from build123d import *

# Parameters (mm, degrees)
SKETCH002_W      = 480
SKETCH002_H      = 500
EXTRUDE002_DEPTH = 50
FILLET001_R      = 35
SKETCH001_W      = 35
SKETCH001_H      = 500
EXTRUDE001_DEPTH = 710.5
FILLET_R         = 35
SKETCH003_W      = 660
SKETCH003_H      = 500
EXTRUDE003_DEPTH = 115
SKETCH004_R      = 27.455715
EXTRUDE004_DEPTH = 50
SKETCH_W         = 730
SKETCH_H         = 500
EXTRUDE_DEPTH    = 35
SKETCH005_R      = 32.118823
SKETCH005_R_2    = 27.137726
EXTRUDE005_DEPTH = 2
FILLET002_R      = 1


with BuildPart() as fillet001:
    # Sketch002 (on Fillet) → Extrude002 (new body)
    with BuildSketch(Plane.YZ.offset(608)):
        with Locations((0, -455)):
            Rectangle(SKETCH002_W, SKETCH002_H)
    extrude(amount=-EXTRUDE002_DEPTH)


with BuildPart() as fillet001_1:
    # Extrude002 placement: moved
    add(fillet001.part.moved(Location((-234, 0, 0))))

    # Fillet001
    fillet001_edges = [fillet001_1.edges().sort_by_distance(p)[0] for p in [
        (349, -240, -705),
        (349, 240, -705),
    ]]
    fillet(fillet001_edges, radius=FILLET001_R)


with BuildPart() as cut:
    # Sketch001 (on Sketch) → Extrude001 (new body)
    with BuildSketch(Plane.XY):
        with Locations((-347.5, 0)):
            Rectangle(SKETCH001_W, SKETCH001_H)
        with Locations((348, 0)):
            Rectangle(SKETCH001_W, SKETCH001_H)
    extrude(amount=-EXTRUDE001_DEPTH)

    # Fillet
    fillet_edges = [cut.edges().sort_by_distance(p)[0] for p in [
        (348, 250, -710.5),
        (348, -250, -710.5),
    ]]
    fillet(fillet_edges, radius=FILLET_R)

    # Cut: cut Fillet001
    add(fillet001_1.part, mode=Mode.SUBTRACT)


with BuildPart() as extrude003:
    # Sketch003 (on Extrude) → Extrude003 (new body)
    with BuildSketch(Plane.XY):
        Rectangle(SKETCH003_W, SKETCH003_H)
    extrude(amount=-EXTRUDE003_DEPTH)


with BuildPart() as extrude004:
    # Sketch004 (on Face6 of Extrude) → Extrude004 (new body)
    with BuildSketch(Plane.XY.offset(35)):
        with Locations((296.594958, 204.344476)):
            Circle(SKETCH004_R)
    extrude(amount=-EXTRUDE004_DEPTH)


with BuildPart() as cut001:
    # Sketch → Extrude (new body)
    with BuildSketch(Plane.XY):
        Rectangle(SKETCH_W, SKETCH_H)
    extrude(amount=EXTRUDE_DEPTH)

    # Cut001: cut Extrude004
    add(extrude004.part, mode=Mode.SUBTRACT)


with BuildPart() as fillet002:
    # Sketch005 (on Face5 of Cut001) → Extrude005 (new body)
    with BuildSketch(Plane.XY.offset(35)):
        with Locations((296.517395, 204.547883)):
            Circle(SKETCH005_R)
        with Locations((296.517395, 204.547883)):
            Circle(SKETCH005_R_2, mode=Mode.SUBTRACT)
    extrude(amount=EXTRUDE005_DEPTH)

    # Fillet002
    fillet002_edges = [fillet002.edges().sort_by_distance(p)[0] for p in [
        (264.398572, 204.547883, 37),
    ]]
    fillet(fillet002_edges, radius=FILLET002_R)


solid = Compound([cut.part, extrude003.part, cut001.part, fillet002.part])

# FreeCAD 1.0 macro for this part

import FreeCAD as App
import Part
import Sketcher
Q = App.Units.Quantity


def edges_at(feature, points):
    """Names of the edges that pass closest to the given points."""
    edges = feature.Shape.Edges
    near = lambda p: min(range(len(edges)), key=lambda i: edges[i].distToShape(Part.Vertex(*p))[0])
    return sorted({f"Edge{near(p) + 1}" for p in points})


def add_polygon(sketch, points):
    """Adds a closed chain of lines whose ends are joined by coincident constraints."""
    first, n = sketch.GeometryCount, len(points)
    for a, b in zip(points, points[1:] + points[:1]):
        sketch.addGeometry(Part.LineSegment(App.Vector(*a, 0), App.Vector(*b, 0)), False)
    for i in range(n):
        sketch.addConstraint(Sketcher.Constraint("Coincident", first + i, 2, first + (i + 1) % n, 1))

doc = App.newDocument("Part")
body = doc.addObject("PartDesign::Body", "Body")

# Sketch on YZ plane
sketch1 = body.newObject("Sketcher::SketchObject", "Sketch")
sketch1.AttachmentSupport = (doc.getObject("YZ_Plane"), [""])
sketch1.MapMode = "FlatFace"
sketch1.AttachmentOffset = App.Placement(App.Vector(0, 0, 608), App.Rotation())
add_polygon(sketch1, [(-240, -205), (-240, -705), (240, -705), (240, -205)])  # lines 0-3
sketch1.addConstraint(Sketcher.Constraint("Vertical", 0))
sketch1.addConstraint(Sketcher.Constraint("Horizontal", 1))
sketch1.addConstraint(Sketcher.Constraint("Vertical", 2))
sketch1.addConstraint(Sketcher.Constraint("Horizontal", 3))
sketch1.addConstraint(Sketcher.Constraint("DistanceX", 1, 1, 1, 2, Q("480 mm")))
sketch1.addConstraint(Sketcher.Constraint("DistanceY", 0, 2, 0, 1, Q("500 mm")))
sketch1.addConstraint(Sketcher.Constraint("DistanceX", 0, 2, -1, 1, Q("240 mm")))
sketch1.addConstraint(Sketcher.Constraint("DistanceY", 0, 2, -1, 1, Q("705 mm")))
pad1 = body.newObject("PartDesign::Pad", "Pad")
pad1.Profile = sketch1
pad1.Length = 50
pad1.Reversed = True
body2 = doc.addObject("PartDesign::Body", "Body001")
doc.recompute()

body.Placement = App.Placement(App.Vector(-234, 0, 0), App.Rotation(App.Vector(0, 0, 1), 0))
boolean = body2.newObject("PartDesign::Boolean", "Boolean")
boolean.Type = "Fuse"
boolean.addObjects([body])
doc.recompute()

fillet = body2.newObject("PartDesign::Fillet", "Fillet")
fillet.Base = (boolean, edges_at(boolean, [(349, -240, -705), (349, 240, -705)]))
fillet.Radius = 35
body3 = doc.addObject("PartDesign::Body", "Body002")
body3.AllowCompound = True

# Sketch on XY plane
sketch2 = body3.newObject("Sketcher::SketchObject", "Sketch001")
sketch2.AttachmentSupport = (doc.getObject("XY_Plane002"), [""])
sketch2.MapMode = "FlatFace"
add_polygon(sketch2, [(-365, 250), (-365, -250), (-330, -250), (-330, 250)])  # lines 0-3
add_polygon(sketch2, [(330, 250), (330, -250), (366, -250), (366, 250)])  # lines 4-7
sketch2.addConstraint(Sketcher.Constraint("Vertical", 0))
sketch2.addConstraint(Sketcher.Constraint("Horizontal", 1))
sketch2.addConstraint(Sketcher.Constraint("Vertical", 2))
sketch2.addConstraint(Sketcher.Constraint("Horizontal", 3))
sketch2.addConstraint(Sketcher.Constraint("Vertical", 4))
sketch2.addConstraint(Sketcher.Constraint("Horizontal", 5))
sketch2.addConstraint(Sketcher.Constraint("Vertical", 6))
sketch2.addConstraint(Sketcher.Constraint("Horizontal", 7))
sketch2.addConstraint(Sketcher.Constraint("Horizontal", 1, 2, 4, 2))
sketch2.addConstraint(Sketcher.Constraint("Horizontal", 3, 2, 6, 2))
sketch2.addConstraint(Sketcher.Constraint("Equal", 3, 5))
sketch2.addConstraint(Sketcher.Constraint("DistanceX", 1, 1, 1, 2, Q("35 mm")))
sketch2.addConstraint(Sketcher.Constraint("DistanceY", 0, 2, 0, 1, Q("500 mm")))
sketch2.addConstraint(Sketcher.Constraint("DistanceX", 0, 2, -1, 1, Q("365 mm")))
sketch2.addConstraint(Sketcher.Constraint("DistanceY", 0, 2, -1, 1, Q("250 mm")))
sketch2.addConstraint(Sketcher.Constraint("DistanceX", -1, 1, 4, 2, Q("330.5 mm")))
pad2 = body3.newObject("PartDesign::Pad", "Pad001")
pad2.Profile = sketch2
pad2.Length = 710.5
pad2.Reversed = True
doc.recompute()

fillet2 = body3.newObject("PartDesign::Fillet", "Fillet001")
fillet2.Base = (pad2, edges_at(pad2, [(348, 250, -710.5), (348, -250, -710.5)]))
fillet2.Radius = 35
doc.recompute()

boolean2 = body3.newObject("PartDesign::Boolean", "Boolean001")
boolean2.Type = "Cut"
boolean2.addObjects([body2])
body4 = doc.addObject("PartDesign::Body", "Body003")

# Sketch on XY plane
sketch3 = body4.newObject("Sketcher::SketchObject", "Sketch002")
sketch3.AttachmentSupport = (doc.getObject("XY_Plane003"), [""])
sketch3.MapMode = "FlatFace"
add_polygon(sketch3, [(-330, 250), (-330, -250), (330, -250), (330, 250)])  # lines 0-3
sketch3.addConstraint(Sketcher.Constraint("Vertical", 0))
sketch3.addConstraint(Sketcher.Constraint("Horizontal", 1))
sketch3.addConstraint(Sketcher.Constraint("Vertical", 2))
sketch3.addConstraint(Sketcher.Constraint("Horizontal", 3))
sketch3.addConstraint(Sketcher.Constraint("Symmetric", 0, 2, 2, 2, -1, 1))
sketch3.addConstraint(Sketcher.Constraint("DistanceX", 1, 1, 1, 2, Q("660 mm")))
sketch3.addConstraint(Sketcher.Constraint("DistanceY", 0, 2, 0, 1, Q("500 mm")))
pad3 = body4.newObject("PartDesign::Pad", "Pad002")
pad3.Profile = sketch3
pad3.Length = 115
pad3.Reversed = True
body5 = doc.addObject("PartDesign::Body", "Body004")

# Sketch on XY plane
sketch4 = body5.newObject("Sketcher::SketchObject", "Sketch003")
sketch4.AttachmentSupport = (doc.getObject("XY_Plane004"), [""])
sketch4.MapMode = "FlatFace"
sketch4.AttachmentOffset = App.Placement(App.Vector(0, 0, 35), App.Rotation())
sketch4.addGeometry(Part.Circle(App.Vector(297, 204, 0), App.Vector(0, 0, 1), 27), False)
sketch4.addConstraint(Sketcher.Constraint("Diameter", 0, Q("54.91143 mm")))
sketch4.addConstraint(Sketcher.Constraint("DistanceX", -1, 1, 0, 3, Q("296.594958 mm")))
sketch4.addConstraint(Sketcher.Constraint("DistanceY", -1, 1, 0, 3, Q("204.344476 mm")))
pad4 = body5.newObject("PartDesign::Pad", "Pad003")
pad4.Profile = sketch4
pad4.Length = 50
pad4.Reversed = True
body6 = doc.addObject("PartDesign::Body", "Body005")

# Sketch on XY plane
sketch5 = body6.newObject("Sketcher::SketchObject", "Sketch004")
sketch5.AttachmentSupport = (doc.getObject("XY_Plane005"), [""])
sketch5.MapMode = "FlatFace"
add_polygon(sketch5, [(-365, 250), (-365, -250), (365, -250), (365, 250)])  # lines 0-3
sketch5.addConstraint(Sketcher.Constraint("Vertical", 0))
sketch5.addConstraint(Sketcher.Constraint("Horizontal", 1))
sketch5.addConstraint(Sketcher.Constraint("Vertical", 2))
sketch5.addConstraint(Sketcher.Constraint("Horizontal", 3))
sketch5.addConstraint(Sketcher.Constraint("Symmetric", 0, 2, 2, 2, -1, 1))
sketch5.addConstraint(Sketcher.Constraint("DistanceX", 1, 1, 1, 2, Q("730 mm")))
sketch5.addConstraint(Sketcher.Constraint("DistanceY", 0, 2, 0, 1, Q("500 mm")))
pad5 = body6.newObject("PartDesign::Pad", "Pad004")
pad5.Profile = sketch5
pad5.Length = 35
doc.recompute()

boolean3 = body6.newObject("PartDesign::Boolean", "Boolean002")
boolean3.Type = "Cut"
boolean3.addObjects([body5])
body7 = doc.addObject("PartDesign::Body", "Body006")

# Sketch on XY plane
sketch6 = body7.newObject("Sketcher::SketchObject", "Sketch005")
sketch6.AttachmentSupport = (doc.getObject("XY_Plane006"), [""])
sketch6.MapMode = "FlatFace"
sketch6.AttachmentOffset = App.Placement(App.Vector(0, 0, 35), App.Rotation())
sketch6.addGeometry(Part.Circle(App.Vector(297, 205, 0), App.Vector(0, 0, 1), 32), False)
sketch6.addGeometry(Part.Circle(App.Vector(297, 205, 0), App.Vector(0, 0, 1), 27), False)
sketch6.addConstraint(Sketcher.Constraint("Coincident", 1, 3, 0, 3))
sketch6.addConstraint(Sketcher.Constraint("Diameter", 0, Q("64.237646 mm")))
sketch6.addConstraint(Sketcher.Constraint("Diameter", 1, Q("54.275452 mm")))
sketch6.addConstraint(Sketcher.Constraint("DistanceX", -1, 1, 0, 3, Q("296.517395 mm")))
sketch6.addConstraint(Sketcher.Constraint("DistanceY", -1, 1, 0, 3, Q("204.547883 mm")))
pad6 = body7.newObject("PartDesign::Pad", "Pad005")
pad6.Profile = sketch6
pad6.Length = 2
doc.recompute()

fillet3 = body7.newObject("PartDesign::Fillet", "Fillet002")
fillet3.Base = (pad6, edges_at(pad6, [(264.399, 204.548, 37)]))
fillet3.Radius = 1

doc.recompute()
